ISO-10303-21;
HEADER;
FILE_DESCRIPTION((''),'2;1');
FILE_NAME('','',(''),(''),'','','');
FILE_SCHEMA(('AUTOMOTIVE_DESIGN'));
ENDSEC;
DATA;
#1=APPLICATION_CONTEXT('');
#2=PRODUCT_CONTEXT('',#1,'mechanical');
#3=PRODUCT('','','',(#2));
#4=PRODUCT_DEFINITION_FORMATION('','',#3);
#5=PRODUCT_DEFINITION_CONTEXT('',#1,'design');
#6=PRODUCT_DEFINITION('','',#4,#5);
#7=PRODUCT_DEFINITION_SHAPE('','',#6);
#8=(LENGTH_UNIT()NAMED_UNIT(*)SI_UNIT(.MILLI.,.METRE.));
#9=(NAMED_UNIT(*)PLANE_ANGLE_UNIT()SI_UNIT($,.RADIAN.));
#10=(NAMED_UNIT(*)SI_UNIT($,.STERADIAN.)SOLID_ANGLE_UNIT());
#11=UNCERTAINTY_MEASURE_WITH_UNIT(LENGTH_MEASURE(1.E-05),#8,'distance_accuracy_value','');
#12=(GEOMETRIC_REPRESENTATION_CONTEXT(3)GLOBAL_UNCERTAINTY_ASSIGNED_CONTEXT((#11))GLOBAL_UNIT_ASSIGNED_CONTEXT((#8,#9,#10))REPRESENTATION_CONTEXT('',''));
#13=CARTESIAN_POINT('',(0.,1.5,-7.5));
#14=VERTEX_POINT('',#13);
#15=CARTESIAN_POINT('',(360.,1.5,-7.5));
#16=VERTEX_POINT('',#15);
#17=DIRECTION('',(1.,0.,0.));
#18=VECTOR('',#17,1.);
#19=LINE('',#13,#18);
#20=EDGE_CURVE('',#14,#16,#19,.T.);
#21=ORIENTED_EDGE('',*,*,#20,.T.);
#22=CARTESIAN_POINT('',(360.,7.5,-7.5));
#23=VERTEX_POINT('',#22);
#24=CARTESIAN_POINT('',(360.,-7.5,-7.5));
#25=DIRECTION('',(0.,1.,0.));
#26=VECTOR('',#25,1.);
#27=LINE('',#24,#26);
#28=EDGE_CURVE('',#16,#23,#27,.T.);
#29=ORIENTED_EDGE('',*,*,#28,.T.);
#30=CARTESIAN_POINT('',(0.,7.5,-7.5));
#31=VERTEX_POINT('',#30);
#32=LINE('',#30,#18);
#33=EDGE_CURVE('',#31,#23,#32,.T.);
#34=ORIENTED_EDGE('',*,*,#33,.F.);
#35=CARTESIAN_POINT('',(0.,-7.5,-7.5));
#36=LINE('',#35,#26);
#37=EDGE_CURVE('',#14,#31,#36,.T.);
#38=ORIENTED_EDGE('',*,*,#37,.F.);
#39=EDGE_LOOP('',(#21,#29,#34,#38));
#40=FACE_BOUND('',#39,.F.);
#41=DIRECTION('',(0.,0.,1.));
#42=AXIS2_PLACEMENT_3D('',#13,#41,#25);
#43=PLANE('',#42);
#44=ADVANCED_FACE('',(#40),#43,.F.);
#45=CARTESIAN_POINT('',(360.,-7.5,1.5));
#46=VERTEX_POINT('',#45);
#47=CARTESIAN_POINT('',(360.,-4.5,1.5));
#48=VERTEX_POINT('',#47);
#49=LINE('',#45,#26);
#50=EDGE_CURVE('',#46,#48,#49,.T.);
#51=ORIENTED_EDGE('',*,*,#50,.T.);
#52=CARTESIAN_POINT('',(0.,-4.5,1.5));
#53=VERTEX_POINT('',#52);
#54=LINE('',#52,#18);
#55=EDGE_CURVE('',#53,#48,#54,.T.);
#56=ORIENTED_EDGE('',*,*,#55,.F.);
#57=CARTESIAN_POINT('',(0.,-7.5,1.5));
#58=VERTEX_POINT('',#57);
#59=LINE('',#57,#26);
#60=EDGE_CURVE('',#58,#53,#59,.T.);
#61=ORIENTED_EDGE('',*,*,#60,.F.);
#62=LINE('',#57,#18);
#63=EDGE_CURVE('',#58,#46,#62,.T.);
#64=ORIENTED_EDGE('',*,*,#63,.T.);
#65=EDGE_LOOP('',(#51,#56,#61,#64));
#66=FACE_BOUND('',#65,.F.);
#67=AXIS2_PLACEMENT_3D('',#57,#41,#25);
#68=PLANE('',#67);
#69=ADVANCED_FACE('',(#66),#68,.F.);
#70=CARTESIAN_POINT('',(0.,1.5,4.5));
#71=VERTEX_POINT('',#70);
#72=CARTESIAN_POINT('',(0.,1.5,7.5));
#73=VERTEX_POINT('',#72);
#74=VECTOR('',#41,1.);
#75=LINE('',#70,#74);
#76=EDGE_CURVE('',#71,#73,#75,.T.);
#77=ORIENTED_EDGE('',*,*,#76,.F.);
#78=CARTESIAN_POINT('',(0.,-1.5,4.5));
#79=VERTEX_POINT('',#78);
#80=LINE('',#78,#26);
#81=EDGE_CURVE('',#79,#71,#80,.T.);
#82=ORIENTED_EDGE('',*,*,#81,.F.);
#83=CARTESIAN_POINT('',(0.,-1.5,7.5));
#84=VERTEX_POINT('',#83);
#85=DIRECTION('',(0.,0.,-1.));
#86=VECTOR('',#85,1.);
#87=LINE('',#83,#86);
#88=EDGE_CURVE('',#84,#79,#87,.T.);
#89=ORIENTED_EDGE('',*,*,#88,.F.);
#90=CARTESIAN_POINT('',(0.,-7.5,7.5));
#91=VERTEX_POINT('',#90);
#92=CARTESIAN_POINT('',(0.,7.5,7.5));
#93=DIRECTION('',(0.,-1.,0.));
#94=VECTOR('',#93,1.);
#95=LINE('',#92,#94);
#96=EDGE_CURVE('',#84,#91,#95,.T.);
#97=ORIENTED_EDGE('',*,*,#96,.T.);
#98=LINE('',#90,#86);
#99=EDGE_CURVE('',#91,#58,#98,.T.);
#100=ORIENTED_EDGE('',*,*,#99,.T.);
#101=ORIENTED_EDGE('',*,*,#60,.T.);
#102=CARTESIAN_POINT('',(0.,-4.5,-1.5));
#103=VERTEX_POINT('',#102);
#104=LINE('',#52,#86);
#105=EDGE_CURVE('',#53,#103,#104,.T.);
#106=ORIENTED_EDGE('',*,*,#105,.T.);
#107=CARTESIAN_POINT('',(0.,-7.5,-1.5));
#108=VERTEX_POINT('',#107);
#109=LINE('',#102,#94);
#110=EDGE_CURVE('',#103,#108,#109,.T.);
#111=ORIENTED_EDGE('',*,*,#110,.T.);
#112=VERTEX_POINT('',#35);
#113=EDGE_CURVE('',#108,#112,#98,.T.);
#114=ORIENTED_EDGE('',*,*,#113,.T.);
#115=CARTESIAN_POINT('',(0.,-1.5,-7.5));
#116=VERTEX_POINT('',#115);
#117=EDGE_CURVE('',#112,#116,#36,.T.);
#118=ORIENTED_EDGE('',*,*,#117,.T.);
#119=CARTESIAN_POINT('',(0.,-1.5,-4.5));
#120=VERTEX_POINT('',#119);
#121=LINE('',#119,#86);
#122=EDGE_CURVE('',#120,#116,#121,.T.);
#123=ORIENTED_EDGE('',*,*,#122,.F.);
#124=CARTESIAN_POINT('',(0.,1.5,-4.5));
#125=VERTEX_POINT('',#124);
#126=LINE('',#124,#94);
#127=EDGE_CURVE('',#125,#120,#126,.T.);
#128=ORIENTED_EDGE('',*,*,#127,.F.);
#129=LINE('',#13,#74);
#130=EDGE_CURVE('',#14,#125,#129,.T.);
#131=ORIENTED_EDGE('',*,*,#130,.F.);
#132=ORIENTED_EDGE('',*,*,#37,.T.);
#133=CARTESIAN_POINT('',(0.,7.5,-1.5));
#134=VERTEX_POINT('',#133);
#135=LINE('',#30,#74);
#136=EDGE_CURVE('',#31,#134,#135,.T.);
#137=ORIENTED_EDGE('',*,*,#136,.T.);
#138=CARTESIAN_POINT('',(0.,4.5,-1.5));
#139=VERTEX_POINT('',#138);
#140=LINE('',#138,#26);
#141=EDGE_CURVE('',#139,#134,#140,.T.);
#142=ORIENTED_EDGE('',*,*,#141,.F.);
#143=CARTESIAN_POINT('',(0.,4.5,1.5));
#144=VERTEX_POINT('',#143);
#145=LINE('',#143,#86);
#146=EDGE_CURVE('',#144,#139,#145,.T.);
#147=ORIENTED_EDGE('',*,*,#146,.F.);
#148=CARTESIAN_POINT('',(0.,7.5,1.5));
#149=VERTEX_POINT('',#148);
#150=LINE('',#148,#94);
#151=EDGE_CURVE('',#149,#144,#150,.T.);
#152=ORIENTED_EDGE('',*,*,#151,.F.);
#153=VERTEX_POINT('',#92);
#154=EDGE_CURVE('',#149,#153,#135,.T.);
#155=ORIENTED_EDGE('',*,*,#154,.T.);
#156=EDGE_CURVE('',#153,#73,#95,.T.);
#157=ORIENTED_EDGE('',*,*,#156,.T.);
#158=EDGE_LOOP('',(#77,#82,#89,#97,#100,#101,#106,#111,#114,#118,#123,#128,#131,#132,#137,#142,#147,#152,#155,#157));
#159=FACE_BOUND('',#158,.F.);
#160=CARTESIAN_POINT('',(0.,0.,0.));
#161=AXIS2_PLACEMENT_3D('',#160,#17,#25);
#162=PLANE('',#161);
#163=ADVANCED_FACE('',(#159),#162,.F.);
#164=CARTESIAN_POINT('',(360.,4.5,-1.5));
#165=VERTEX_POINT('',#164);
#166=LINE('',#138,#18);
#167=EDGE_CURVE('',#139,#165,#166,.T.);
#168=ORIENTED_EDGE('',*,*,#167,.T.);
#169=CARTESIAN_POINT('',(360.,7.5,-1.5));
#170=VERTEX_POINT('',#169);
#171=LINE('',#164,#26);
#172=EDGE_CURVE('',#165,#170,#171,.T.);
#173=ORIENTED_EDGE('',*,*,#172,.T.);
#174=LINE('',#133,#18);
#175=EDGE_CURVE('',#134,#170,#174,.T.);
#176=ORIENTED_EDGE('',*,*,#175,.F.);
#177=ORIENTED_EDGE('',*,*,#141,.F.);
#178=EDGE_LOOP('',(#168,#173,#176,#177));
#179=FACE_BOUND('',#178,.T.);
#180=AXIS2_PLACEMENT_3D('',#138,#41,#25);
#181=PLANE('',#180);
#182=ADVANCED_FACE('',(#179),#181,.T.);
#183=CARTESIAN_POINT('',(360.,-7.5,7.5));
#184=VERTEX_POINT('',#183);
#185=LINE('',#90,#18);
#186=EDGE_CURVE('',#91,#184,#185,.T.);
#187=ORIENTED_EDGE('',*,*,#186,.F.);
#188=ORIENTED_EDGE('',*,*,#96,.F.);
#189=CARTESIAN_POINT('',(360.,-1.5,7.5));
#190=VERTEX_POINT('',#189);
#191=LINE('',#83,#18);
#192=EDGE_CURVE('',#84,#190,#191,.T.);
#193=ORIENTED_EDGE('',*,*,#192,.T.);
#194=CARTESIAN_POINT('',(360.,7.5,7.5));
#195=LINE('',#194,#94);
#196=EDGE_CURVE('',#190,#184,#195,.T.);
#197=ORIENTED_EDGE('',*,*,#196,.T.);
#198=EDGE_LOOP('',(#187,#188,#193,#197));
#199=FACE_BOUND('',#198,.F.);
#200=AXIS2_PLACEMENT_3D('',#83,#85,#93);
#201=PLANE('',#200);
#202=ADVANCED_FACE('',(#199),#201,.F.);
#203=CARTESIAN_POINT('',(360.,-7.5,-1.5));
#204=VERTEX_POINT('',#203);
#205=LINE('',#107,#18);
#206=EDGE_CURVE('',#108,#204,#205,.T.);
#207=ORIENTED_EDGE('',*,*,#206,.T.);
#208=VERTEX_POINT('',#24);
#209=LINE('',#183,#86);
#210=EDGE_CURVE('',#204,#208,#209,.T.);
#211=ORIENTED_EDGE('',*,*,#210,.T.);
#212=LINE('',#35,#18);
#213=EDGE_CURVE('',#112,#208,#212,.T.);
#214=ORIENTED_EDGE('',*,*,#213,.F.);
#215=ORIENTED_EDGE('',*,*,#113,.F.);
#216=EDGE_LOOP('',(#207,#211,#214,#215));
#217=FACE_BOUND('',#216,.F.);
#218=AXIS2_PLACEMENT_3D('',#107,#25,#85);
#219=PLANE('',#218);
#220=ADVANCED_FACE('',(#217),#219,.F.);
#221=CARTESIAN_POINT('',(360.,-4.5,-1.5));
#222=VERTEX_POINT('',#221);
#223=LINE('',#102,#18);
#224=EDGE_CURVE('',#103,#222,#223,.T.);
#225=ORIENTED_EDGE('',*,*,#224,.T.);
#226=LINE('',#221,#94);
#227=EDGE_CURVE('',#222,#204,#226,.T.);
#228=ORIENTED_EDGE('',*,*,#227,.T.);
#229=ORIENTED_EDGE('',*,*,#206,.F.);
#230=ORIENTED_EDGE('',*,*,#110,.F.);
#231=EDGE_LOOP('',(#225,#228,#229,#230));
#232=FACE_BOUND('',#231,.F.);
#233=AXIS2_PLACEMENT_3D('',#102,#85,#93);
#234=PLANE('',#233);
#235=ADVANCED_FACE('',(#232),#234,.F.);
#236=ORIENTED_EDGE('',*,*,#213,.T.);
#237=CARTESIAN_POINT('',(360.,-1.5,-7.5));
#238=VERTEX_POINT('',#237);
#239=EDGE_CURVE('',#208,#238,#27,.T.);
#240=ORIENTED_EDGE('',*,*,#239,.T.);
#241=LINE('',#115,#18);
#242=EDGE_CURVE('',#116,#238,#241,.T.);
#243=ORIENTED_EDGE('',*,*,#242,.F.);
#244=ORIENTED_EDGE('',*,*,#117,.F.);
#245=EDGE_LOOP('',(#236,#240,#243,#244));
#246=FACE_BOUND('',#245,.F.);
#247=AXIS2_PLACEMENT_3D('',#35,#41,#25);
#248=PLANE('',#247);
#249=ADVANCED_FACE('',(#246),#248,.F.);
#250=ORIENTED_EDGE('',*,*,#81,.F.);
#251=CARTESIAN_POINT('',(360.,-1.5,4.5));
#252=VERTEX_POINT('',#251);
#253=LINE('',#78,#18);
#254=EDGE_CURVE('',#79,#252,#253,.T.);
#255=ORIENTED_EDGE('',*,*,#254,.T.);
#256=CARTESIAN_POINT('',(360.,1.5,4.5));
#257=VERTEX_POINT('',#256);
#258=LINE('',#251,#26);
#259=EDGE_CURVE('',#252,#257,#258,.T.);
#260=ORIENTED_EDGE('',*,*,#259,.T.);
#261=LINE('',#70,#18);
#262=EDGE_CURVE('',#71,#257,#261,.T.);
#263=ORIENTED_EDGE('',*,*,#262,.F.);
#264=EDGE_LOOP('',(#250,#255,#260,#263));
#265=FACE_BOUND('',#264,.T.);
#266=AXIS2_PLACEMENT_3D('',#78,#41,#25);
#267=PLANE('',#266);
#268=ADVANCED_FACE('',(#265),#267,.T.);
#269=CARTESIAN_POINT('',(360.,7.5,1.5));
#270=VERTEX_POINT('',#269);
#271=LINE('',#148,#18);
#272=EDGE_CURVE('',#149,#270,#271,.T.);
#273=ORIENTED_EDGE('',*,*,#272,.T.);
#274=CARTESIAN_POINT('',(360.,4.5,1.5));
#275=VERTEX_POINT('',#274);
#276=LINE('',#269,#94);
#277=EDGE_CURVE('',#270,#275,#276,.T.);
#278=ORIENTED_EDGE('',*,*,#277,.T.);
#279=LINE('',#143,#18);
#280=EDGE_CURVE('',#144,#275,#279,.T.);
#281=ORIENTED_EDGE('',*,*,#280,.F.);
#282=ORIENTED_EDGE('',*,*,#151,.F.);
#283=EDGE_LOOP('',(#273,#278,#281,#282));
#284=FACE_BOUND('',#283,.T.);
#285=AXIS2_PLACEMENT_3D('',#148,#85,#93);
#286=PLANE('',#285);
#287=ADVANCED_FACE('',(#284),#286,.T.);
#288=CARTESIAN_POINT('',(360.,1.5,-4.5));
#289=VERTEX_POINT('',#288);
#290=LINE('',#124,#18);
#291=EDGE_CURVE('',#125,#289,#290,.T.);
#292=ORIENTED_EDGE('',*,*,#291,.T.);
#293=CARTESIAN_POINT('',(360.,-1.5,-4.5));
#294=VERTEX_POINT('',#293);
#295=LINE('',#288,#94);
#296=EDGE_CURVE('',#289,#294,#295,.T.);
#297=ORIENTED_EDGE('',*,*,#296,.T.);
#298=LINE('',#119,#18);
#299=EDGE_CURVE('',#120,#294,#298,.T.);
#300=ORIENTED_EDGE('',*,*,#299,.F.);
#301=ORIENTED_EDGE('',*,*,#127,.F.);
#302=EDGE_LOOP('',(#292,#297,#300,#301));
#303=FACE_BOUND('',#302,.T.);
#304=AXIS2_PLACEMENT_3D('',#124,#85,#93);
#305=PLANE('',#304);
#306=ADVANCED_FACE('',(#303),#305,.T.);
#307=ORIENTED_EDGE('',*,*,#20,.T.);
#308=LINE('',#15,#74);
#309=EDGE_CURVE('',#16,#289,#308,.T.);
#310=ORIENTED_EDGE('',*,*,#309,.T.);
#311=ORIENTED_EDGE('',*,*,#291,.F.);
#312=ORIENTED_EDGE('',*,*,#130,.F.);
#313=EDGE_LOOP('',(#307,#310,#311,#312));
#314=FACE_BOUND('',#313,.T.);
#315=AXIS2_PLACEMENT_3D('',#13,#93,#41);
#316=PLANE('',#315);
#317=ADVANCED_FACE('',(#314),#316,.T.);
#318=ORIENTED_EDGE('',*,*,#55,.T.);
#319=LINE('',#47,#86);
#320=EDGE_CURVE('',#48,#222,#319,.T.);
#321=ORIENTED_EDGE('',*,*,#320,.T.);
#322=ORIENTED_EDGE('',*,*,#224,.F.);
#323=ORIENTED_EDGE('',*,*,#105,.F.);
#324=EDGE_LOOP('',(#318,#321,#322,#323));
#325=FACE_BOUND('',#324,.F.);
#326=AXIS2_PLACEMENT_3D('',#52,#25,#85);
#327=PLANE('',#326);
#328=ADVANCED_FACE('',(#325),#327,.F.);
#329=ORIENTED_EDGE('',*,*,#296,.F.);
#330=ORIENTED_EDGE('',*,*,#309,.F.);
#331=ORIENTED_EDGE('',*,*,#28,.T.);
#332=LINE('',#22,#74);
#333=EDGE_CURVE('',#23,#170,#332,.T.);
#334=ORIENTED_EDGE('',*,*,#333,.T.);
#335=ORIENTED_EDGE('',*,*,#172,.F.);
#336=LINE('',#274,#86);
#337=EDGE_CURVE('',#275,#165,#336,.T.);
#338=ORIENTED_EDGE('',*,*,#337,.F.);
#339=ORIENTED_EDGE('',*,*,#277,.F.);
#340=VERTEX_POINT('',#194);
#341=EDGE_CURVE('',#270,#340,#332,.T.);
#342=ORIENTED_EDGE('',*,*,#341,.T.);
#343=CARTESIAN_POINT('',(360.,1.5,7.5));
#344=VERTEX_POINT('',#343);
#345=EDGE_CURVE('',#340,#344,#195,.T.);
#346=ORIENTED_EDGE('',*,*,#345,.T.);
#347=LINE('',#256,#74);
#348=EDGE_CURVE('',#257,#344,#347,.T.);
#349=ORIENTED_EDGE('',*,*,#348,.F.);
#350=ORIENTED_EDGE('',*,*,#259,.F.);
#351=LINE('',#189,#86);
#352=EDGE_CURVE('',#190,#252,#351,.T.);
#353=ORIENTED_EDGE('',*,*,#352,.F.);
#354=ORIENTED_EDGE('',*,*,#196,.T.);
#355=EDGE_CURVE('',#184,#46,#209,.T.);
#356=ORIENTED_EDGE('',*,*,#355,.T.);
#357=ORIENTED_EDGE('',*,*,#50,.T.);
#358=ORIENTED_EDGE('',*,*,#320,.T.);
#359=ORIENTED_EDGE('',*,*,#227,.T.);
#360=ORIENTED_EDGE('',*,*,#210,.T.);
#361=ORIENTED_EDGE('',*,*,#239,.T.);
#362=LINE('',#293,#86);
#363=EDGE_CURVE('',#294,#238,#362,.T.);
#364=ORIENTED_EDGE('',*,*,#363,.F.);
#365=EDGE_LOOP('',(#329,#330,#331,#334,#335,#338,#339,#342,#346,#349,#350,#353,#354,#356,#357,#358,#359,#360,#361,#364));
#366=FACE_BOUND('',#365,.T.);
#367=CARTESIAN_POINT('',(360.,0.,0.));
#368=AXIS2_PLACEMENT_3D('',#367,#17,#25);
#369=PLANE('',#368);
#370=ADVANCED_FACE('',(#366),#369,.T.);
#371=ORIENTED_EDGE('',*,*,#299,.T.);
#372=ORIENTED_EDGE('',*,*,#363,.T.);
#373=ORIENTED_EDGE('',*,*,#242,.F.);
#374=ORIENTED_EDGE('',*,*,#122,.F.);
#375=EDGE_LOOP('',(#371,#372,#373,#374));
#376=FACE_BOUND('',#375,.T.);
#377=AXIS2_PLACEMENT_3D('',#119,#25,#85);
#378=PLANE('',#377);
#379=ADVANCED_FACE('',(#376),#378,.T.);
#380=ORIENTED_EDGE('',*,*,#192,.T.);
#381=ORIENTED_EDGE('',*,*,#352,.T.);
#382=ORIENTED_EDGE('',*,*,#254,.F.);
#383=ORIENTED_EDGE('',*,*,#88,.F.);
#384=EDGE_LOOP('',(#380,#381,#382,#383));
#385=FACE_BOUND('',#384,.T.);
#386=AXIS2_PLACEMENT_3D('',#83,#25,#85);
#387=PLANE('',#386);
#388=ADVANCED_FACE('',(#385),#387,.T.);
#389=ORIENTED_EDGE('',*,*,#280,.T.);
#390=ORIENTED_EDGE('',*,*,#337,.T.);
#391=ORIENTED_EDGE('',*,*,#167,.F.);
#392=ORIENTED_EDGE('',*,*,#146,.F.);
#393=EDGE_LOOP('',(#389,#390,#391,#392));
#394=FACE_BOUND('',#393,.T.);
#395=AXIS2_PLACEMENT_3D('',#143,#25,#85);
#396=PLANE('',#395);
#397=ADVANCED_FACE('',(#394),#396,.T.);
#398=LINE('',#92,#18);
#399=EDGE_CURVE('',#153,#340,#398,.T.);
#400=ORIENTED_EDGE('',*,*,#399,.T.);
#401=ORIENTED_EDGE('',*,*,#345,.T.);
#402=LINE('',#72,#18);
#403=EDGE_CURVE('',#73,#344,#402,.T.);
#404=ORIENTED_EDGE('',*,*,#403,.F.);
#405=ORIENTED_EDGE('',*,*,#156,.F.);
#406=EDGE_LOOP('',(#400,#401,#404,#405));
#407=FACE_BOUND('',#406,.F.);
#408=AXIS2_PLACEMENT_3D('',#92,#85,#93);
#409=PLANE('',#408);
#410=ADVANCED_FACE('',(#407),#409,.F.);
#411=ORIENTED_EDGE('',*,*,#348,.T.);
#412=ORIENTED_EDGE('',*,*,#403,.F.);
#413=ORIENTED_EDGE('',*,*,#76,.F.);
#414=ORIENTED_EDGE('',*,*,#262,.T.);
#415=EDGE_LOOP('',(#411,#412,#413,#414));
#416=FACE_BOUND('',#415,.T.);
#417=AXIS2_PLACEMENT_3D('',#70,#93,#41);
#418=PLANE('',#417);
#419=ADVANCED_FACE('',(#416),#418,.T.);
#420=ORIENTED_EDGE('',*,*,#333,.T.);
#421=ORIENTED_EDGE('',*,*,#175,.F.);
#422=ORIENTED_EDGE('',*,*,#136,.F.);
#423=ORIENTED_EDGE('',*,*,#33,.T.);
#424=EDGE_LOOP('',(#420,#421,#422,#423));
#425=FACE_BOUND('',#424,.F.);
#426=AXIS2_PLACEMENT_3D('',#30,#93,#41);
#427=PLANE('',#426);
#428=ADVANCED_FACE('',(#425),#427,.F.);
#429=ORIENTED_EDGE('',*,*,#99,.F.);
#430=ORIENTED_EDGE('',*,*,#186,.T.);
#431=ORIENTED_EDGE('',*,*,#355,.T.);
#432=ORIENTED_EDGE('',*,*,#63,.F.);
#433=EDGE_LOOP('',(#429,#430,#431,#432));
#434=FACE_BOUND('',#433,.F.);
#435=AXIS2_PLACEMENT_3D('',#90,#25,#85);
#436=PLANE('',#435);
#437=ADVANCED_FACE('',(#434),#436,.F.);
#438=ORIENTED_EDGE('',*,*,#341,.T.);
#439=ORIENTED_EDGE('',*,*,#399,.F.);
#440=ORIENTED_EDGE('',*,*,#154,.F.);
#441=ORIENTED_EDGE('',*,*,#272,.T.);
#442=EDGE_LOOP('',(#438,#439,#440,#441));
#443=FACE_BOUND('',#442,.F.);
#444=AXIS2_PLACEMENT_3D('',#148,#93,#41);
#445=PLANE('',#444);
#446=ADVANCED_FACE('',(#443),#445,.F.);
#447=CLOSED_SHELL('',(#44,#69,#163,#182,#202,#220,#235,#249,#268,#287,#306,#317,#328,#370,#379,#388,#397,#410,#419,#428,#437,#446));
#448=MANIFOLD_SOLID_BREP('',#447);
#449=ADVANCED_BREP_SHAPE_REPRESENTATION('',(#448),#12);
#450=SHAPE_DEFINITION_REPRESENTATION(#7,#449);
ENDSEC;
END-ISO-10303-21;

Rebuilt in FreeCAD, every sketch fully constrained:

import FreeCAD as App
import Part
import Sketcher


def add_polygon(sketch, points):
    """Adds a closed chain of lines whose ends are joined by coincident constraints."""
    first, n = sketch.GeometryCount, len(points)
    for a, b in zip(points, points[1:] + points[:1]):
        sketch.addGeometry(Part.LineSegment(App.Vector(*a, 0), App.Vector(*b, 0)), False)
    for i in range(n):
        sketch.addConstraint(Sketcher.Constraint("Coincident", first + i, 2, first + (i + 1) % n, 1))

doc = App.newDocument("Part")
body = doc.addObject("PartDesign::Body", "Body")

sketch1 = body.newObject("Sketcher::SketchObject", "Sketch")
sketch1.AttachmentSupport = (doc.getObject("YZ_Plane"), [""])
sketch1.MapMode = "FlatFace"
add_polygon(sketch1, [(-7.5, -1.5), (-7.5, -7.5), (-1.5, -7.5), (-1.5, -4.5), (1.5, -4.5), (1.5, -7.5), (7.5, -7.5), (7.5, -1.5), (4.5, -1.5), (4.5, 1.5), (7.5, 1.5), (7.5, 7.5), (1.5, 7.5), (1.5, 4.5), (-1.5, 4.5), (-1.5, 7.5), (-7.5, 7.5), (-7.5, 1.5), (-4.5, 1.5), (-4.5, -1.5)])
sketch1.addConstraint([
    Sketcher.Constraint("Vertical", 0),
    Sketcher.Constraint("Horizontal", 1),
    Sketcher.Constraint("Vertical", 2),
    Sketcher.Constraint("Horizontal", 3),
    Sketcher.Constraint("Vertical", 4),
    Sketcher.Constraint("Horizontal", 5),
    Sketcher.Constraint("Vertical", 6),
    Sketcher.Constraint("Horizontal", 7),
    Sketcher.Constraint("Vertical", 8),
    Sketcher.Constraint("Horizontal", 9),
    Sketcher.Constraint("Vertical", 10),
    Sketcher.Constraint("Horizontal", 11),
    Sketcher.Constraint("Vertical", 12),
    Sketcher.Constraint("Horizontal", 13),
    Sketcher.Constraint("Vertical", 14),
    Sketcher.Constraint("Horizontal", 15),
    Sketcher.Constraint("Vertical", 16),
    Sketcher.Constraint("Horizontal", 17),
    Sketcher.Constraint("Vertical", 18),
    Sketcher.Constraint("Horizontal", 19),
    Sketcher.Constraint("Symmetric", 0, 2, 10, 2, -1, 1),
    Sketcher.Constraint("Symmetric", 2, 2, 12, 2, -1, 1),
    Sketcher.Constraint("Symmetric", 4, 2, 14, 2, -1, 1),
    Sketcher.Constraint("Symmetric", 6, 2, 16, 2, -1, 1),
    Sketcher.Constraint("Symmetric", 8, 2, 18, 2, -1, 1),
    Sketcher.Constraint("Symmetric", 1, 2, 4, 2, -2),
    Sketcher.Constraint("Symmetric", 9, 2, 16, 2, -2),
    Sketcher.Constraint("Equal", 3, 7),
    Sketcher.Constraint("Equal", 15, 0),
    Sketcher.Constraint("Equal", 19, 2),
    Sketcher.Constraint("Equal", 4, 8),
    Sketcher.Constraint("DistanceX", 3, 1, 3, 2, 3.0),
    Sketcher.Constraint("DistanceX", 0, 2, 5, 2, 15.0),
])
pad1 = body.newObject("PartDesign::Pad", "Pad")
pad1.Profile = sketch1
pad1.Length = 360

doc.recompute()
